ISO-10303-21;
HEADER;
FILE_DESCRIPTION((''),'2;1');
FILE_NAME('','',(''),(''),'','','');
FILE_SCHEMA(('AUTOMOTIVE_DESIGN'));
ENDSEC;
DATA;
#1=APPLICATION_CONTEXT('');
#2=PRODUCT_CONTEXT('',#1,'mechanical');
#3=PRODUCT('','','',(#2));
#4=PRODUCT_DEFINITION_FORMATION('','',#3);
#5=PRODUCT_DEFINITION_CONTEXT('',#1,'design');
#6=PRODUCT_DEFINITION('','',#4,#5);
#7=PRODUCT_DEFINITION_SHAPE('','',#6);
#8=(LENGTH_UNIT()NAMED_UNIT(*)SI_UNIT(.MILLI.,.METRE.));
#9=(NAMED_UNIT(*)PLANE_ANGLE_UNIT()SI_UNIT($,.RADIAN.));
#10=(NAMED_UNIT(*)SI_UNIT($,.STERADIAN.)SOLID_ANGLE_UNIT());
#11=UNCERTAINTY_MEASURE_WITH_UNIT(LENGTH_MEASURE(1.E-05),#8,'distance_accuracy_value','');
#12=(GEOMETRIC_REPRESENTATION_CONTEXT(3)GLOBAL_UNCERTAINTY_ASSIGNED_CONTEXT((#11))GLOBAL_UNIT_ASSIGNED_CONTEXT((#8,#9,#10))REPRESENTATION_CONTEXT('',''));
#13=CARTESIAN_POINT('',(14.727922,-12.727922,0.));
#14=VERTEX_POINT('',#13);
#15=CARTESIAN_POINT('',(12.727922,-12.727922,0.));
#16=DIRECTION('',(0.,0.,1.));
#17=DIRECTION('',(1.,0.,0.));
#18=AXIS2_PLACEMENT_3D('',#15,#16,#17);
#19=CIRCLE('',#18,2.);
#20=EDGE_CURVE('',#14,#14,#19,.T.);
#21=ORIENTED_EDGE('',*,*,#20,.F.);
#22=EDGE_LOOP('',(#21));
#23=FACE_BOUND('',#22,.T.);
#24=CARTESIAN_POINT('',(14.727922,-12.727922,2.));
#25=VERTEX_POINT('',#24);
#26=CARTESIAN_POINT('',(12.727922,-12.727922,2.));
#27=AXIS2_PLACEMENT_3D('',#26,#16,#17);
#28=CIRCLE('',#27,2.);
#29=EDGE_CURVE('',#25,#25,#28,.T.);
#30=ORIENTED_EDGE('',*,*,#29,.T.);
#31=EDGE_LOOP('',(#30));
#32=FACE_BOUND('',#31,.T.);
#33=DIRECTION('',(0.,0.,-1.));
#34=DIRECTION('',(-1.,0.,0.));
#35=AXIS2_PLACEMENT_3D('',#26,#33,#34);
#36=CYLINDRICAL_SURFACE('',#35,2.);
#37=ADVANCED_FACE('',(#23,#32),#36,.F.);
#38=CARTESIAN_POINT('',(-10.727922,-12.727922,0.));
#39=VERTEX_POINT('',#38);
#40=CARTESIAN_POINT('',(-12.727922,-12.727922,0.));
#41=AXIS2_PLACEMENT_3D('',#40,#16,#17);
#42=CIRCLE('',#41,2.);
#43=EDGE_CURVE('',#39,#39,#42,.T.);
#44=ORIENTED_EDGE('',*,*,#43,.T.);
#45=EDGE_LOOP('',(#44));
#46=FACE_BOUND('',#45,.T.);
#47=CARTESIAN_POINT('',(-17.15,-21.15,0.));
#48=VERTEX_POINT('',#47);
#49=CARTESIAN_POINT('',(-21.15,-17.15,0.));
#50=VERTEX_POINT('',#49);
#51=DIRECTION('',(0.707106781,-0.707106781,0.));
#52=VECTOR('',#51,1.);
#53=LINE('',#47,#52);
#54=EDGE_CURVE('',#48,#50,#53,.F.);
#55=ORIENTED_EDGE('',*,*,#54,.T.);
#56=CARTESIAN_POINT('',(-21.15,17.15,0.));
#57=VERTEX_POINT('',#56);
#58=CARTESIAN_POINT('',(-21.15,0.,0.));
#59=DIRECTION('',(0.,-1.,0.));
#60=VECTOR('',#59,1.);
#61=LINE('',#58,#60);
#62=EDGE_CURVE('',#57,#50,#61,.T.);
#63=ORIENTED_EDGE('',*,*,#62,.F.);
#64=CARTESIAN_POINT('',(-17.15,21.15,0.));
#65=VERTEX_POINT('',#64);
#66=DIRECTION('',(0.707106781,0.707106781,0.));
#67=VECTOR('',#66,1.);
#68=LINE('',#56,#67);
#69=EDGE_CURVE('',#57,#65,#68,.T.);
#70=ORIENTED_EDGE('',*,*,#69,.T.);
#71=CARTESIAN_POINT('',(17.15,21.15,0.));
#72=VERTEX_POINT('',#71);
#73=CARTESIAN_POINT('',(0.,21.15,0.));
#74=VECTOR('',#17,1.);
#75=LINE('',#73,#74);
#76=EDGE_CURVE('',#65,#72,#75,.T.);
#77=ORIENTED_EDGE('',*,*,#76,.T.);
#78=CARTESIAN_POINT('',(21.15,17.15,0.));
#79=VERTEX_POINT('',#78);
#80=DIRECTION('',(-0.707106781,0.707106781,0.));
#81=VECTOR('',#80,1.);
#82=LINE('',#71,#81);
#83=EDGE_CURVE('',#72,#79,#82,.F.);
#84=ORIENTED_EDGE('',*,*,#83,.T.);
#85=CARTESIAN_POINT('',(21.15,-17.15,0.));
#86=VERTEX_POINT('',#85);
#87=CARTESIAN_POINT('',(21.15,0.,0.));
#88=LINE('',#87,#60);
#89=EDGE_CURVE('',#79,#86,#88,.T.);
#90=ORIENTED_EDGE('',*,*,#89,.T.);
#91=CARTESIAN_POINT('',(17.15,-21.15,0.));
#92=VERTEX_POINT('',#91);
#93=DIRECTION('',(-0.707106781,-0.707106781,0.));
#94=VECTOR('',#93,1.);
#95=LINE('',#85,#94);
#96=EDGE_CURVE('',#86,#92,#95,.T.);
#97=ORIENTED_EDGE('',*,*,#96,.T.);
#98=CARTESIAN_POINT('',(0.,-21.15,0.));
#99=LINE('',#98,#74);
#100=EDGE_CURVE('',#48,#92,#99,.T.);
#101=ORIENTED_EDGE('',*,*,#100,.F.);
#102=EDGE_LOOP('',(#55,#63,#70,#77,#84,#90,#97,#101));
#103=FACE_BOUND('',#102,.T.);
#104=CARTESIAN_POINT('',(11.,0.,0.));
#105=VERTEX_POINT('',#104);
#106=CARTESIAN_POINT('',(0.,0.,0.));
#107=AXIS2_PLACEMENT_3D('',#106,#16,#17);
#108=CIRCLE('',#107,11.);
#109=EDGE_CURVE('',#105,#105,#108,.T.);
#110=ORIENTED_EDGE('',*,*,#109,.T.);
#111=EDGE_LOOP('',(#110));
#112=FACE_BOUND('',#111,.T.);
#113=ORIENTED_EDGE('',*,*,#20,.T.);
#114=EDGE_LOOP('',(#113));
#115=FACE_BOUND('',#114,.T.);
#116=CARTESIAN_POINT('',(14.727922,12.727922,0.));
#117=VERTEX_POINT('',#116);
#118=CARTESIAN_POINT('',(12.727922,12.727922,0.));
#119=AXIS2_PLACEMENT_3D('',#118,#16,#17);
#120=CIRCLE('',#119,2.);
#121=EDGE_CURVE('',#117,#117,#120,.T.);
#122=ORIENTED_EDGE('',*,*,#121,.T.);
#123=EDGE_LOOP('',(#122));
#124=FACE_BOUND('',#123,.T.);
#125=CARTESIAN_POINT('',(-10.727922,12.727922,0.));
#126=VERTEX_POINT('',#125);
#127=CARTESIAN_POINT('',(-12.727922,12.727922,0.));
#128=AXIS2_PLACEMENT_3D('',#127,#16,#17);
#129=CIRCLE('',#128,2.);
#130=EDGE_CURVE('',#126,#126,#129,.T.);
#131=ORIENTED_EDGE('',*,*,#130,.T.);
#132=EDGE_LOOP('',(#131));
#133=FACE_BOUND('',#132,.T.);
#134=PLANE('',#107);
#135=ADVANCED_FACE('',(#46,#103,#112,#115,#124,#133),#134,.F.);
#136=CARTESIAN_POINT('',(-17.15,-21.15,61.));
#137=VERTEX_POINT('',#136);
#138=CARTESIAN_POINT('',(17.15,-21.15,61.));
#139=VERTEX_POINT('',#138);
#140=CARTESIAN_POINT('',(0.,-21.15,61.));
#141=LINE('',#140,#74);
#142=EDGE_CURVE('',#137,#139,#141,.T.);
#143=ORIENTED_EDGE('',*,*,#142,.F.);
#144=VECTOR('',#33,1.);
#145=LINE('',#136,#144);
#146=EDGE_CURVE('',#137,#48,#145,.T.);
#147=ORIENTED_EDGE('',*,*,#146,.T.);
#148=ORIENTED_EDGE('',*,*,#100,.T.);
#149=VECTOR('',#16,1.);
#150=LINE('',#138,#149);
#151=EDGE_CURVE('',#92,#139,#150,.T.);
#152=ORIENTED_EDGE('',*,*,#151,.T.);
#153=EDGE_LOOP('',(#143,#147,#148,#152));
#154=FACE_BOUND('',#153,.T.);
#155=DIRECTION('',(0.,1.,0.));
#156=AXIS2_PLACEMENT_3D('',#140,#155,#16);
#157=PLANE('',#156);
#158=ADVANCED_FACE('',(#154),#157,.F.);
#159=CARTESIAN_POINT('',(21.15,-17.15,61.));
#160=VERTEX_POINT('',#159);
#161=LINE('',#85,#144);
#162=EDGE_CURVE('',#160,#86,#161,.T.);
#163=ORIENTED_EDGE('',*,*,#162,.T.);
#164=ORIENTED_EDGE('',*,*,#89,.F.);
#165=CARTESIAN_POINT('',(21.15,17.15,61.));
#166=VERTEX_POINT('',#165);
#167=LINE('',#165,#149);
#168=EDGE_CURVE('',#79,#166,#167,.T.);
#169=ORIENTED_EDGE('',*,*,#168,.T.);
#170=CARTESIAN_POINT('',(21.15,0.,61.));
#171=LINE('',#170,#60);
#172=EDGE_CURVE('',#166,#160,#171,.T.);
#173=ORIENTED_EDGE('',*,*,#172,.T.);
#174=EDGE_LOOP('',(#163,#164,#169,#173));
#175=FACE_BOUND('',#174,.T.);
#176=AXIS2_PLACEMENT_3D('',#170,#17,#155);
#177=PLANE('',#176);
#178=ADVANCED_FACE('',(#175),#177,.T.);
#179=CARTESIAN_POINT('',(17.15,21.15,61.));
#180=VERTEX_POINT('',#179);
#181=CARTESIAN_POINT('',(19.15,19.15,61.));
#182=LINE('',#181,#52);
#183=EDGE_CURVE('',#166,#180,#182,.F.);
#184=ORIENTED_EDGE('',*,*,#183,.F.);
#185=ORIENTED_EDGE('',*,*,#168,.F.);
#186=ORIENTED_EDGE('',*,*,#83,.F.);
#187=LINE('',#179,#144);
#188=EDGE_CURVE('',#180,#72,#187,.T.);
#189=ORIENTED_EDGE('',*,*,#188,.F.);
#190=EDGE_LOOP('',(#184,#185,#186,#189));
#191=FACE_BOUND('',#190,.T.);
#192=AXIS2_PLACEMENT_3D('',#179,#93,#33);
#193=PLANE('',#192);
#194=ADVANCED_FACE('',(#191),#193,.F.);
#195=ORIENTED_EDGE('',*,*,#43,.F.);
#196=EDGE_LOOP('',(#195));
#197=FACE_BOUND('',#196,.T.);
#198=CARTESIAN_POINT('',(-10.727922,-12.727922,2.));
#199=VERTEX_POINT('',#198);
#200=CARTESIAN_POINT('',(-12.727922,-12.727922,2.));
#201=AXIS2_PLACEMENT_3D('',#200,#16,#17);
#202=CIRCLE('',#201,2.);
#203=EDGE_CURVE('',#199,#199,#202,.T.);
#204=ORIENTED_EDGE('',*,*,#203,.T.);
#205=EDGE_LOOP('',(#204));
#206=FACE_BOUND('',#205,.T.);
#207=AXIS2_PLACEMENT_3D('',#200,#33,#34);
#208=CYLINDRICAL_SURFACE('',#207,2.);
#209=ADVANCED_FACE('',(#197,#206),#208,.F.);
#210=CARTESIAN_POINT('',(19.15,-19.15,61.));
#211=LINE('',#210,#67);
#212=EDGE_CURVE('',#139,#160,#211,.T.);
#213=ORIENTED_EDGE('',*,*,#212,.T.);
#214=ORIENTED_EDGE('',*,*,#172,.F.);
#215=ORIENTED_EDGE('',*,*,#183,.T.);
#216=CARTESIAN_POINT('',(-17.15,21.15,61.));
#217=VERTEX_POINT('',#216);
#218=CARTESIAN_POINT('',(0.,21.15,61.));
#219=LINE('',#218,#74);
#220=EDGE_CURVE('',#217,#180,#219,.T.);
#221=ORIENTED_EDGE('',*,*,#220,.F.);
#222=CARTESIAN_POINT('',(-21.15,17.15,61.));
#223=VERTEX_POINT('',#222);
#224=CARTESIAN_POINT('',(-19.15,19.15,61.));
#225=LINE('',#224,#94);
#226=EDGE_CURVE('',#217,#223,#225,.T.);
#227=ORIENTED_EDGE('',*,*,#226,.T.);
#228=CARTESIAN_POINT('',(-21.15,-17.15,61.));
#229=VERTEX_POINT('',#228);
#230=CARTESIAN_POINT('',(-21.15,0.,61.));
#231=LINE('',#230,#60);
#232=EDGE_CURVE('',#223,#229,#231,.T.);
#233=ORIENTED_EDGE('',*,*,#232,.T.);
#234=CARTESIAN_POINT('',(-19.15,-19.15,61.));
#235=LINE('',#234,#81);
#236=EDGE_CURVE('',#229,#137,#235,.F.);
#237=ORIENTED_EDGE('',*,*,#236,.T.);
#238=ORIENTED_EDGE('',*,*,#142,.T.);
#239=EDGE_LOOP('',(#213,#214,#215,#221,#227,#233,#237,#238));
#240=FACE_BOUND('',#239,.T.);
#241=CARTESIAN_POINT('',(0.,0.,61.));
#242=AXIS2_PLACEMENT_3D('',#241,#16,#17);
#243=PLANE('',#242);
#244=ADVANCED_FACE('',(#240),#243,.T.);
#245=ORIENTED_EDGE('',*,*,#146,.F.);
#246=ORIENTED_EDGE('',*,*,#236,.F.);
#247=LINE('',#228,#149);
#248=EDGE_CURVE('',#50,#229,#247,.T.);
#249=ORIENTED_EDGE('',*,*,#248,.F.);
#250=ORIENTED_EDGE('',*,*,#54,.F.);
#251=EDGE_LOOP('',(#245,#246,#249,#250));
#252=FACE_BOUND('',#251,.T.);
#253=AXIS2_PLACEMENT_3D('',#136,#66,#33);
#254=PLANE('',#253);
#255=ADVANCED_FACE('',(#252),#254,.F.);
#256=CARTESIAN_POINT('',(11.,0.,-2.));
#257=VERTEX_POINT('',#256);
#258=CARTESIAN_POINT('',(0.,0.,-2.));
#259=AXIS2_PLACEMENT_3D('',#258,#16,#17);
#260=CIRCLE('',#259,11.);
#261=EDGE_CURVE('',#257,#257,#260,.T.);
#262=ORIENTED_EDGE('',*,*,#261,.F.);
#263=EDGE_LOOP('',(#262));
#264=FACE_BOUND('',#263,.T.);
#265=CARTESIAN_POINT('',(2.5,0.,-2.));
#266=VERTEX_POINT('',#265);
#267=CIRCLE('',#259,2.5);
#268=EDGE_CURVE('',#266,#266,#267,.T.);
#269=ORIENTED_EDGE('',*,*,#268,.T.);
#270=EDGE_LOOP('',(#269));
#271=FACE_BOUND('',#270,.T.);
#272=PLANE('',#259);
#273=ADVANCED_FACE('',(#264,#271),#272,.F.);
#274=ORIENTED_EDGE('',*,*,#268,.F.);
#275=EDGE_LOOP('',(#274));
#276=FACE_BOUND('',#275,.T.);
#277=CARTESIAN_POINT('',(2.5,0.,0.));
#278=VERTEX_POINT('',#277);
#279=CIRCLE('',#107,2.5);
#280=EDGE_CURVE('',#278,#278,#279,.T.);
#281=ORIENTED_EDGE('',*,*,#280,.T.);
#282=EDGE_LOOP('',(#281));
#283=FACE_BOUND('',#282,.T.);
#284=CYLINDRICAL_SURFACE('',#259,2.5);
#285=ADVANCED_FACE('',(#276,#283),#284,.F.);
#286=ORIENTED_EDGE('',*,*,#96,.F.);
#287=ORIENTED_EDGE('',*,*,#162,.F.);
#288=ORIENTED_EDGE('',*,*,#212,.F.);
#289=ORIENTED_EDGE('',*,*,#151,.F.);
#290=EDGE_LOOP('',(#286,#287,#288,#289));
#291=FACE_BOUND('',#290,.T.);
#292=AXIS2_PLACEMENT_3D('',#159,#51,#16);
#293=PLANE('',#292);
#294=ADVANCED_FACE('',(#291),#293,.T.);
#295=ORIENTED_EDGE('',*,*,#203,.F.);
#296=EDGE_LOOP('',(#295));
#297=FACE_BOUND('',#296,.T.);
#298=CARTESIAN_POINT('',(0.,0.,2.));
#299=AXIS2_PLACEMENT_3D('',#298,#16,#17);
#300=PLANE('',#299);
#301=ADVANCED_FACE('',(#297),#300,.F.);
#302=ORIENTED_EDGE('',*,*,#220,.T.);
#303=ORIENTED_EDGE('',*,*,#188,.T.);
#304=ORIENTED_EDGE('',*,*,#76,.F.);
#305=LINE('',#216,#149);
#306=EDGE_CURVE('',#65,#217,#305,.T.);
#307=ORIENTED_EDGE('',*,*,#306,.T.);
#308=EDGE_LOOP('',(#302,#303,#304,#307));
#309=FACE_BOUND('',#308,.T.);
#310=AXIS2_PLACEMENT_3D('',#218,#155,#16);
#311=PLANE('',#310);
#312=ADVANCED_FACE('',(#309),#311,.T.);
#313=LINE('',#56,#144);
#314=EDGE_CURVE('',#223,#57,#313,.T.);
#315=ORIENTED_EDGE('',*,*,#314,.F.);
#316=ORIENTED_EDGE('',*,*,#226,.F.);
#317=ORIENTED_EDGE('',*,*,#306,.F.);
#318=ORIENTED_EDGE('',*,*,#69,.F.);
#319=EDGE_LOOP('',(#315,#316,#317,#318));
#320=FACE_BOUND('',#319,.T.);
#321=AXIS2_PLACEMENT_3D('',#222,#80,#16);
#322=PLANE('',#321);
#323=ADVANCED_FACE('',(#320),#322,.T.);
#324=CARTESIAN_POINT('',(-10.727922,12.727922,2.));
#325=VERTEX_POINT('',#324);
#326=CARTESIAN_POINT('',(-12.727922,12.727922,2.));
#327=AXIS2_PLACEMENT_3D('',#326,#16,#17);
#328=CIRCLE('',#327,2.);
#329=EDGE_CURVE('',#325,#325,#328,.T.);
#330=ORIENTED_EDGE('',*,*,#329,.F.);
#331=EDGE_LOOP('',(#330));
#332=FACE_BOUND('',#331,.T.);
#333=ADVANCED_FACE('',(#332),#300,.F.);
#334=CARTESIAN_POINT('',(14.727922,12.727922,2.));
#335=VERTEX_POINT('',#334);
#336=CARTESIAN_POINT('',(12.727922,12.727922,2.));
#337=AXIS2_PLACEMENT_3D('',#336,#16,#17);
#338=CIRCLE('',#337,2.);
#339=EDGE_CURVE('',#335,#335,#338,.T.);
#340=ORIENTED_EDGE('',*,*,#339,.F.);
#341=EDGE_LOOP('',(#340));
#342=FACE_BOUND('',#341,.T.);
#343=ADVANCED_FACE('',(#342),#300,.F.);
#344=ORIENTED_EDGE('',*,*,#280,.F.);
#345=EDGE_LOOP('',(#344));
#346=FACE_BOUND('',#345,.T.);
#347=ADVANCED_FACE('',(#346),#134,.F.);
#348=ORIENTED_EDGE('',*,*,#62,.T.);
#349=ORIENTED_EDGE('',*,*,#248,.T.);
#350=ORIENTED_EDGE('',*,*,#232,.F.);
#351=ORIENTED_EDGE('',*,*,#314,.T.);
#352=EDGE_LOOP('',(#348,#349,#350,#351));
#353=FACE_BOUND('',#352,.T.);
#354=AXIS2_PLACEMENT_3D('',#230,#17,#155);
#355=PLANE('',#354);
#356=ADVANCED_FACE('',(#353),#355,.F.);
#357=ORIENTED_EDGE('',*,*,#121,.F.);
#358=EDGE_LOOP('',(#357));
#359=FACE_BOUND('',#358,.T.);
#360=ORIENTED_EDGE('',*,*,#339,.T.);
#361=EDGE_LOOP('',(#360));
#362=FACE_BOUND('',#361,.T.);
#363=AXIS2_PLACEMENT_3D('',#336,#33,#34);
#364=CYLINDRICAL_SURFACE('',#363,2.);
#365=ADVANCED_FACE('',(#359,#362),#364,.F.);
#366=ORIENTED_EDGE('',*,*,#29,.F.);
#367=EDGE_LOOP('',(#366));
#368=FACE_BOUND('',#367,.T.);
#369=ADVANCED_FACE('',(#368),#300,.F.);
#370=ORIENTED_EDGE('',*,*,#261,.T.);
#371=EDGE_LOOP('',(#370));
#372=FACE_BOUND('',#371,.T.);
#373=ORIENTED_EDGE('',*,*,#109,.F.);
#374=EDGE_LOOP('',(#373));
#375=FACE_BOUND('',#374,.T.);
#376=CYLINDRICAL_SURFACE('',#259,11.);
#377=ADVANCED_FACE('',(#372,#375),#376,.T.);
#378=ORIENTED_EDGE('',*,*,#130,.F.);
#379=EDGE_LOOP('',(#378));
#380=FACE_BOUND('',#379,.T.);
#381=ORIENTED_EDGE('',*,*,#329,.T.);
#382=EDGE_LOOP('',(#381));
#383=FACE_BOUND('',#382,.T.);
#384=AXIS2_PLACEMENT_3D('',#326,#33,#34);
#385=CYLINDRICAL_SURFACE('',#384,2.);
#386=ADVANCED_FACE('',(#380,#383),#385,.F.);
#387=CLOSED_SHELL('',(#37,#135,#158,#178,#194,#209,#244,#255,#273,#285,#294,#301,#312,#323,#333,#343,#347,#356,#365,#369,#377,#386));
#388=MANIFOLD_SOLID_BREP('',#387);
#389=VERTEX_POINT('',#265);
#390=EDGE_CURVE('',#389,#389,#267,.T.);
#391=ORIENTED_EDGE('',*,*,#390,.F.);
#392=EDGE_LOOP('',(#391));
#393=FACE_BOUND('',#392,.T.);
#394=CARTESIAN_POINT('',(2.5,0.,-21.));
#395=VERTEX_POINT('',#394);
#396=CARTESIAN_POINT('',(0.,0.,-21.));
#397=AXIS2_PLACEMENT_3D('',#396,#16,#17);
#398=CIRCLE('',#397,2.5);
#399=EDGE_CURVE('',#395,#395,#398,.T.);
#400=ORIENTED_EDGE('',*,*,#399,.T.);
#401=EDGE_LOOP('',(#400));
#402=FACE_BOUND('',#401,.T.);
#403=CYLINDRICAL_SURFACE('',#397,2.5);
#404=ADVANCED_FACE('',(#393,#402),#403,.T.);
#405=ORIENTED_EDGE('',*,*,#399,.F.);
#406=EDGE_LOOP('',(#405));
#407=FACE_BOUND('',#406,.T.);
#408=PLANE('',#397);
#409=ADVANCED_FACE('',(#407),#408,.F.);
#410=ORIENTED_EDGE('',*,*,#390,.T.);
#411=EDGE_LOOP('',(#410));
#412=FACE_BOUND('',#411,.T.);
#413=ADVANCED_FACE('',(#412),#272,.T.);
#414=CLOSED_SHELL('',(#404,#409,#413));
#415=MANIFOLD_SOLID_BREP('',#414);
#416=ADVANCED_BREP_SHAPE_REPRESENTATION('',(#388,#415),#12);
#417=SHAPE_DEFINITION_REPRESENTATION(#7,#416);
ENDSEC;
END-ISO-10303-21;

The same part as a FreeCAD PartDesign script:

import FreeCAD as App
import Part
import Sketcher
Q = App.Units.Quantity


def edges_at(feature, points):
    """Names of the edges that pass closest to the given points."""
    edges = feature.Shape.Edges
    near = lambda p: min(range(len(edges)), key=lambda i: edges[i].distToShape(Part.Vertex(*p))[0])
    return sorted({f"Edge{near(p) + 1}" for p in points})

doc = App.newDocument("Part")
params = doc.addObject("Spreadsheet::Sheet", "Params")
for row, (alias, value) in enumerate([
    ("sketch1_width", "42.3 mm"),
    ("pad1_length", "61 mm"),
    ("sketch2_diameter", "22 mm"),
    ("sketch2_diameter2", "5 mm"),
    ("pad2_length", "2 mm"),
    ("sketch3_diameter", "4 mm"),
    ("pocket1_length", "2 mm"),
    ("chamfer_size", "4 mm"),
    ("sketch4_diameter", "5 mm"),
    ("pad3_length", "19 mm"),
], start=1):
    params.set(f"A{row}", alias)
    params.set(f"B{row}", "=" + value)
    params.setAlias(f"B{row}", alias)

body = doc.addObject("PartDesign::Body", "Body")

sketch1 = body.newObject("Sketcher::SketchObject", "Sketch")
sketch1.AttachmentSupport = (doc.getObject("XY_Plane"), [""])
sketch1.MapMode = "FlatFace"
sketch1.addGeometry([
    Part.LineSegment(App.Vector(-21, 21, 0), App.Vector(-21, -21, 0)),
    Part.LineSegment(App.Vector(-21, -21, 0), App.Vector(21, -21, 0)),
    Part.LineSegment(App.Vector(21, -21, 0), App.Vector(21, 21, 0)),
    Part.LineSegment(App.Vector(21, 21, 0), App.Vector(-21, 21, 0)),
], False)
sketch1.addConstraint([
    Sketcher.Constraint("Coincident", 0, 2, 1, 1),
    Sketcher.Constraint("Coincident", 1, 2, 2, 1),
    Sketcher.Constraint("Coincident", 2, 2, 3, 1),
    Sketcher.Constraint("Coincident", 3, 2, 0, 1),
    Sketcher.Constraint("Vertical", 0),
    Sketcher.Constraint("Horizontal", 1),
    Sketcher.Constraint("Vertical", 2),
    Sketcher.Constraint("Horizontal", 3),
    Sketcher.Constraint("Symmetric", 0, 2, 2, 2, -1, 1),
    Sketcher.Constraint("Equal", 3, 0),
    Sketcher.Constraint("DistanceX", 1, 1, 1, 2, Q("42.3 mm")),
])
sketch1.setExpression("Constraints[10]", "Params.sketch1_width")
pad1 = body.newObject("PartDesign::Pad", "Pad")
pad1.Profile = sketch1
pad1.setExpression("Length", "Params.pad1_length")

sketch2 = body.newObject("Sketcher::SketchObject", "Sketch001")
sketch2.AttachmentSupport = (doc.getObject("XY_Plane"), [""])
sketch2.MapMode = "FlatFace"
sketch2.addGeometry([
    Part.Circle(App.Vector(0, 0, 0), App.Vector(0, 0, 1), 11),
    Part.Circle(App.Vector(0, 0, 0), App.Vector(0, 0, 1), 2.5),
], False)
sketch2.addConstraint([
    Sketcher.Constraint("Coincident", 0, 3, -1, 1),
    Sketcher.Constraint("Coincident", 1, 3, -1, 1),
    Sketcher.Constraint("Diameter", 0, Q("22 mm")),
    Sketcher.Constraint("Diameter", 1, Q("5 mm")),
])
sketch2.setExpression("Constraints[2]", "Params.sketch2_diameter")
sketch2.setExpression("Constraints[3]", "Params.sketch2_diameter2")
pad2 = body.newObject("PartDesign::Pad", "Pad001")
pad2.Profile = sketch2
pad2.setExpression("Length", "Params.pad2_length")
pad2.Reversed = True

sketch3 = body.newObject("Sketcher::SketchObject", "Sketch002")
sketch3.AttachmentSupport = (doc.getObject("XY_Plane"), [""])
sketch3.MapMode = "FlatFace"
sketch3.addGeometry([
    Part.Circle(App.Vector(12.7, 12.7, 0), App.Vector(0, 0, 1), 2),
    Part.Circle(App.Vector(-12.7, 12.7, 0), App.Vector(0, 0, 1), 2),
    Part.Circle(App.Vector(-12.7, -12.7, 0), App.Vector(0, 0, 1), 2),
    Part.Circle(App.Vector(12.7, -12.7, 0), App.Vector(0, 0, 1), 2),
], False)
sketch3.addConstraint([
    Sketcher.Constraint("Equal", 0, 1),
    Sketcher.Constraint("Equal", 1, 2),
    Sketcher.Constraint("Equal", 2, 3),
    Sketcher.Constraint("Symmetric", 0, 3, 2, 3, -1, 1),
    Sketcher.Constraint("Symmetric", 1, 3, 3, 3, -1, 1),
    Sketcher.Constraint("Symmetric", 0, 3, 1, 3, -2),
    Sketcher.Constraint("Diameter", 0, Q("4 mm")),
    Sketcher.Constraint("DistanceX", -1, 1, 0, 3, Q("12.727922 mm")),
    Sketcher.Constraint("DistanceY", -1, 1, 0, 3, Q("12.727922 mm")),
])
sketch3.setExpression("Constraints[6]", "Params.sketch3_diameter")
pocket1 = body.newObject("PartDesign::Pocket", "Pocket")
pocket1.Profile = sketch3
pocket1.setExpression("Length", "Params.pocket1_length")
pocket1.Reversed = True
doc.recompute()

chamfer = body.newObject("PartDesign::Chamfer", "Chamfer")
chamfer.Base = (pocket1, edges_at(pocket1, [
    (21.15, -21.15, 30.5),
    (-21.15, -21.15, 30.5),
    (-21.15, 21.15, 30.5),
    (21.15, 21.15, 30.5),
]))
chamfer.setExpression("Size", "Params.chamfer_size")
body2 = doc.addObject("PartDesign::Body", "Body001")

sketch4 = body2.newObject("Sketcher::SketchObject", "Sketch003")
sketch4.AttachmentSupport = (doc.getObject("XY_Plane001"), [""])
sketch4.MapMode = "FlatFace"
sketch4.AttachmentOffset = App.Placement(App.Vector(0, 0, -2), App.Rotation())
sketch4.addGeometry(Part.Circle(App.Vector(0, 0, 0), App.Vector(0, 0, 1), 2.5), False)
sketch4.addConstraint([
    Sketcher.Constraint("Coincident", 0, 3, -1, 1),
    Sketcher.Constraint("Diameter", 0, Q("5 mm")),
])
sketch4.setExpression("Constraints[1]", "Params.sketch4_diameter")
pad3 = body2.newObject("PartDesign::Pad", "Pad002")
pad3.Profile = sketch4
pad3.setExpression("Length", "Params.pad3_length")
pad3.Reversed = True

doc.recompute()
